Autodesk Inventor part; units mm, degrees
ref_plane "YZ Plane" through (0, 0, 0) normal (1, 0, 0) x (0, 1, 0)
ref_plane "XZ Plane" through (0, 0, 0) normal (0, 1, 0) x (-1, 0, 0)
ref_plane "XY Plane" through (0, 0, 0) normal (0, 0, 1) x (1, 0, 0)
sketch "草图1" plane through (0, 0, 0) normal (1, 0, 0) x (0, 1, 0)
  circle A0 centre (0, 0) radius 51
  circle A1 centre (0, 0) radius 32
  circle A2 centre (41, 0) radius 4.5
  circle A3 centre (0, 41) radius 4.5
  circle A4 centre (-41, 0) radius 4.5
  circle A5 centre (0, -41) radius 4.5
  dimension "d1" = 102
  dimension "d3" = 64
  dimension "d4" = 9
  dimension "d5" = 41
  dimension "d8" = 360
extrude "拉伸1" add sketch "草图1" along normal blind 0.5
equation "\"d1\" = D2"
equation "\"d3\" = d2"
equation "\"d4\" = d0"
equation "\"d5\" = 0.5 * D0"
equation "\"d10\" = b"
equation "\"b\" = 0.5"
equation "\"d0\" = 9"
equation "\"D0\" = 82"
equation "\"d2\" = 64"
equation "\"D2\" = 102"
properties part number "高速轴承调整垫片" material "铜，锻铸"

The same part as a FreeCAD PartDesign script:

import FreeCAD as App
import Part
import Sketcher

V = App.Vector

doc = App.newDocument("Part")
params = doc.addObject("Spreadsheet::Sheet", "Params")
for row, (alias, value) in enumerate([
    ("sketch1_diameter", "102 mm"),
    ("sketch1_diameter2", "9 mm"),
    ("sketch1_diameter3", "64 mm"),
    ("pad1_length", "0.5 mm"),
], start=1):
    params.set(f"A{row}", alias)
    params.set(f"B{row}", "=" + value)
    params.setAlias(f"B{row}", alias)

body = doc.addObject("PartDesign::Body", "Body")

sketch1 = doc.addObject("Sketcher::SketchObject", "Sketch")
body.addObject(sketch1)
sketch1.AttachmentSupport = (doc.YZ_Plane, [""])
sketch1.MapMode = "FlatFace"
sketch1.addGeometry([
    Part.Circle(V(0, 0, 0), V(0, 0, 1), 51),
    Part.Circle(V(0, -41, 0), V(0, 0, 1), 4.5),
    Part.Circle(V(-41, 0, 0), V(0, 0, 1), 4.5),
    Part.Circle(V(0, 0, 0), V(0, 0, 1), 32),
    Part.Circle(V(41, 0, 0), V(0, 0, 1), 4.5),
    Part.Circle(V(0, 41, 0), V(0, 0, 1), 4.5),
], False)
sketch1.addConstraint([
    Sketcher.Constraint("Coincident", 0, 3, -1, 1),
    Sketcher.Constraint("Coincident", 3, 3, -1, 1),
    Sketcher.Constraint("Equal", 1, 2),
    Sketcher.Constraint("Equal", 2, 4),
    Sketcher.Constraint("Equal", 4, 5),
    Sketcher.Constraint("Symmetric", 2, 3, 4, 3, -1, 1),
    Sketcher.Constraint("Symmetric", 1, 3, 5, 3, -1, 1),
    Sketcher.Constraint("PointOnObject", 1, 3, -2),
    Sketcher.Constraint("PointOnObject", 2, 3, -1),
    Sketcher.Constraint("Diameter", 0, 102.0),
    Sketcher.Constraint("Diameter", 1, 9.0),
    Sketcher.Constraint("Diameter", 3, 64.0),
    Sketcher.Constraint("DistanceY", 1, 3, -1, 1, 41.0),
    Sketcher.Constraint("DistanceX", 2, 3, -1, 1, 41.0),
])
sketch1.setExpression("Constraints[9]", "Params.sketch1_diameter")
sketch1.setExpression("Constraints[10]", "Params.sketch1_diameter2")
sketch1.setExpression("Constraints[11]", "Params.sketch1_diameter3")
pad1 = doc.addObject("PartDesign::Pad", "Pad")
body.addObject(pad1)
pad1.Profile = sketch1
pad1.setExpression("Length", "Params.pad1_length")

doc.recompute()
